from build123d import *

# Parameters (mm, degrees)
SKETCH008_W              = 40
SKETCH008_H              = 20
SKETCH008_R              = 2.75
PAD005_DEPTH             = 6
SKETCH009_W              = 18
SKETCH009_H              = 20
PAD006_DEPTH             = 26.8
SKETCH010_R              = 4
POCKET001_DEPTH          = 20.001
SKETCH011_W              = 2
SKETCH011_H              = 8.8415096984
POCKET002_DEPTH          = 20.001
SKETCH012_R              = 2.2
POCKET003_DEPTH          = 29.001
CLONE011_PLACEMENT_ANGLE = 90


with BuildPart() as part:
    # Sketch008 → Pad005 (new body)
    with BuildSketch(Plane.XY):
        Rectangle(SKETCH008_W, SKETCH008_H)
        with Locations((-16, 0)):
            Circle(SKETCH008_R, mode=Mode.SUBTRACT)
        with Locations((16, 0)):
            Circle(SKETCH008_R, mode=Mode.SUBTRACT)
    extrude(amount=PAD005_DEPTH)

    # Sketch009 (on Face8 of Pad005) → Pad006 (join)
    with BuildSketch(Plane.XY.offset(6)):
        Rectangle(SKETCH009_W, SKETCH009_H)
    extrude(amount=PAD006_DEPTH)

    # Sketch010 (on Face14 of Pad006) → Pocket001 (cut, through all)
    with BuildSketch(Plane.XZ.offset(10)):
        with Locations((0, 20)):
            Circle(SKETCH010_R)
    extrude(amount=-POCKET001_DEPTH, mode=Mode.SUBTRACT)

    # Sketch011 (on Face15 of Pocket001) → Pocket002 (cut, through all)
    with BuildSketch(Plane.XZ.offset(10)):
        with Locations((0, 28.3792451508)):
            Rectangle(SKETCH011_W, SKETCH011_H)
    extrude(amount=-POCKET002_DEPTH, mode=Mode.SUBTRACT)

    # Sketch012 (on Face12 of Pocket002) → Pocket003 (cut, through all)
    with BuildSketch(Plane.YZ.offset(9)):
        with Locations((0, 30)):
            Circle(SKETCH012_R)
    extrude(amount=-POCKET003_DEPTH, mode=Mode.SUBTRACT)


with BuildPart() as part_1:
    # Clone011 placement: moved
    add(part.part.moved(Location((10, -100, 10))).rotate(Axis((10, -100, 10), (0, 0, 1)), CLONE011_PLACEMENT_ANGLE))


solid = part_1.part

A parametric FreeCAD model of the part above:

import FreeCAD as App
import Part
import Sketcher

V = App.Vector
Q = App.Units.Quantity


def add_polygon(sketch, points):
    """Adds a closed chain of lines whose ends are joined by coincident constraints."""
    first, n = sketch.GeometryCount, len(points)
    for a, b in zip(points, points[1:] + points[:1]):
        sketch.addGeometry(Part.LineSegment(App.Vector(*a, 0), App.Vector(*b, 0)), False)
    for i in range(n):
        sketch.addConstraint(Sketcher.Constraint("Coincident", first + i, 2, first + (i + 1) % n, 1))

doc = App.newDocument("Part")
body = doc.addObject("PartDesign::Body", "Body")

# Sketch on XY plane
sketch1 = body.newObject("Sketcher::SketchObject", "Sketch")
sketch1.AttachmentSupport = (doc.getObject("XY_Plane"), [""])
sketch1.MapMode = "FlatFace"
add_polygon(sketch1, [(-20, 10), (-20, -10), (20, -10), (20, 10)])  # lines 0-3
sketch1.addGeometry(Part.Circle(V(-16, 0, 0), V(0, 0, 1), 2.75), False)  # 4
sketch1.addGeometry(Part.Circle(V(16, 0, 0), V(0, 0, 1), 2.75), False)  # 5
sketch1.addConstraint([
    Sketcher.Constraint("Vertical", 0),
    Sketcher.Constraint("Horizontal", 1),
    Sketcher.Constraint("Vertical", 2),
    Sketcher.Constraint("Horizontal", 3),
    Sketcher.Constraint("Equal", 4, 5),
    Sketcher.Constraint("Symmetric", 4, 3, 5, 3, -1, 1),
    Sketcher.Constraint("Symmetric", 0, 2, 2, 2, -1, 1),
    Sketcher.Constraint("PointOnObject", 4, 3, -1),
    Sketcher.Constraint("Diameter", 4, Q("5.5 mm")),
    Sketcher.Constraint("DistanceX", 1, 1, 1, 2, Q("40 mm")),
    Sketcher.Constraint("DistanceY", 0, 2, 0, 1, Q("20 mm")),
    Sketcher.Constraint("DistanceX", 4, 3, -1, 1, Q("16 mm")),
])
pad1 = body.newObject("PartDesign::Pad", "Pad")
pad1.Profile = sketch1
pad1.Length = 6

# Sketch on XY plane
sketch2 = body.newObject("Sketcher::SketchObject", "Sketch001")
sketch2.AttachmentSupport = (doc.getObject("XY_Plane"), [""])
sketch2.MapMode = "FlatFace"
sketch2.AttachmentOffset = App.Placement(V(0, 0, 6), App.Rotation())
add_polygon(sketch2, [(-9, 10), (-9, -10), (9, -10), (9, 10)])  # lines 0-3
sketch2.addConstraint([
    Sketcher.Constraint("Vertical", 0),
    Sketcher.Constraint("Horizontal", 1),
    Sketcher.Constraint("Vertical", 2),
    Sketcher.Constraint("Horizontal", 3),
    Sketcher.Constraint("Symmetric", 0, 2, 2, 2, -1, 1),
    Sketcher.Constraint("DistanceX", 1, 1, 1, 2, Q("18 mm")),
    Sketcher.Constraint("DistanceY", 0, 2, 0, 1, Q("20 mm")),
])
pad2 = body.newObject("PartDesign::Pad", "Pad001")
pad2.Profile = sketch2
pad2.Length = 26.8

# Sketch on XZ plane
sketch3 = body.newObject("Sketcher::SketchObject", "Sketch002")
sketch3.AttachmentSupport = (doc.getObject("XZ_Plane"), [""])
sketch3.MapMode = "FlatFace"
sketch3.AttachmentOffset = App.Placement(V(0, 0, 10), App.Rotation())
sketch3.addGeometry(Part.Circle(V(0, 20, 0), V(0, 0, 1), 4), False)
sketch3.addConstraint([
    Sketcher.Constraint("PointOnObject", 0, 3, -2),
    Sketcher.Constraint("Diameter", 0, Q("8 mm")),
    Sketcher.Constraint("DistanceY", -1, 1, 0, 3, Q("20 mm")),
])
pocket1 = body.newObject("PartDesign::Pocket", "Pocket")
pocket1.Profile = sketch3
pocket1.Type = "ThroughAll"

# Sketch on XZ plane
sketch4 = body.newObject("Sketcher::SketchObject", "Sketch003")
sketch4.AttachmentSupport = (doc.getObject("XZ_Plane"), [""])
sketch4.MapMode = "FlatFace"
sketch4.AttachmentOffset = App.Placement(V(0, 0, 10), App.Rotation())
add_polygon(sketch4, [(-1, 32.8), (-1, 23.95849), (1, 23.95849), (1, 32.8)])  # lines 0-3
sketch4.addConstraint([
    Sketcher.Constraint("Vertical", 0),
    Sketcher.Constraint("Horizontal", 1),
    Sketcher.Constraint("Vertical", 2),
    Sketcher.Constraint("Horizontal", 3),
    Sketcher.Constraint("DistanceX", 1, 1, 1, 2, Q("2 mm")),
    Sketcher.Constraint("DistanceX", 0, 2, -1, 1, Q("1 mm")),
    Sketcher.Constraint("DistanceY", -1, 1, 2, 2, Q("32.8 mm")),
    Sketcher.Constraint("DistanceY", 0, 2, 0, 1, Q("8.84151 mm")),
])
pocket2 = body.newObject("PartDesign::Pocket", "Pocket001")
pocket2.Profile = sketch4
pocket2.Type = "ThroughAll"

# Sketch on YZ plane
sketch5 = body.newObject("Sketcher::SketchObject", "Sketch004")
sketch5.AttachmentSupport = (doc.getObject("YZ_Plane"), [""])
sketch5.MapMode = "FlatFace"
sketch5.AttachmentOffset = App.Placement(V(0, 0, 9), App.Rotation())
sketch5.addGeometry(Part.Circle(V(0, 30, 0), V(0, 0, 1), 2.2), False)
sketch5.addConstraint([
    Sketcher.Constraint("PointOnObject", 0, 3, -2),
    Sketcher.Constraint("Diameter", 0, Q("4.4 mm")),
    Sketcher.Constraint("DistanceY", -1, 1, 0, 3, Q("30 mm")),
])
pocket3 = body.newObject("PartDesign::Pocket", "Pocket002")
pocket3.Profile = sketch5
pocket3.Type = "ThroughAll"
body2 = doc.addObject("PartDesign::Body", "Body001")
doc.recompute()

body.Placement = App.Placement(V(10, -100, 10), App.Rotation(V(0, 0, 1), 90))
boolean = body2.newObject("PartDesign::Boolean", "Boolean")
boolean.Type = "Fuse"
boolean.addObjects([body])

doc.recompute()
